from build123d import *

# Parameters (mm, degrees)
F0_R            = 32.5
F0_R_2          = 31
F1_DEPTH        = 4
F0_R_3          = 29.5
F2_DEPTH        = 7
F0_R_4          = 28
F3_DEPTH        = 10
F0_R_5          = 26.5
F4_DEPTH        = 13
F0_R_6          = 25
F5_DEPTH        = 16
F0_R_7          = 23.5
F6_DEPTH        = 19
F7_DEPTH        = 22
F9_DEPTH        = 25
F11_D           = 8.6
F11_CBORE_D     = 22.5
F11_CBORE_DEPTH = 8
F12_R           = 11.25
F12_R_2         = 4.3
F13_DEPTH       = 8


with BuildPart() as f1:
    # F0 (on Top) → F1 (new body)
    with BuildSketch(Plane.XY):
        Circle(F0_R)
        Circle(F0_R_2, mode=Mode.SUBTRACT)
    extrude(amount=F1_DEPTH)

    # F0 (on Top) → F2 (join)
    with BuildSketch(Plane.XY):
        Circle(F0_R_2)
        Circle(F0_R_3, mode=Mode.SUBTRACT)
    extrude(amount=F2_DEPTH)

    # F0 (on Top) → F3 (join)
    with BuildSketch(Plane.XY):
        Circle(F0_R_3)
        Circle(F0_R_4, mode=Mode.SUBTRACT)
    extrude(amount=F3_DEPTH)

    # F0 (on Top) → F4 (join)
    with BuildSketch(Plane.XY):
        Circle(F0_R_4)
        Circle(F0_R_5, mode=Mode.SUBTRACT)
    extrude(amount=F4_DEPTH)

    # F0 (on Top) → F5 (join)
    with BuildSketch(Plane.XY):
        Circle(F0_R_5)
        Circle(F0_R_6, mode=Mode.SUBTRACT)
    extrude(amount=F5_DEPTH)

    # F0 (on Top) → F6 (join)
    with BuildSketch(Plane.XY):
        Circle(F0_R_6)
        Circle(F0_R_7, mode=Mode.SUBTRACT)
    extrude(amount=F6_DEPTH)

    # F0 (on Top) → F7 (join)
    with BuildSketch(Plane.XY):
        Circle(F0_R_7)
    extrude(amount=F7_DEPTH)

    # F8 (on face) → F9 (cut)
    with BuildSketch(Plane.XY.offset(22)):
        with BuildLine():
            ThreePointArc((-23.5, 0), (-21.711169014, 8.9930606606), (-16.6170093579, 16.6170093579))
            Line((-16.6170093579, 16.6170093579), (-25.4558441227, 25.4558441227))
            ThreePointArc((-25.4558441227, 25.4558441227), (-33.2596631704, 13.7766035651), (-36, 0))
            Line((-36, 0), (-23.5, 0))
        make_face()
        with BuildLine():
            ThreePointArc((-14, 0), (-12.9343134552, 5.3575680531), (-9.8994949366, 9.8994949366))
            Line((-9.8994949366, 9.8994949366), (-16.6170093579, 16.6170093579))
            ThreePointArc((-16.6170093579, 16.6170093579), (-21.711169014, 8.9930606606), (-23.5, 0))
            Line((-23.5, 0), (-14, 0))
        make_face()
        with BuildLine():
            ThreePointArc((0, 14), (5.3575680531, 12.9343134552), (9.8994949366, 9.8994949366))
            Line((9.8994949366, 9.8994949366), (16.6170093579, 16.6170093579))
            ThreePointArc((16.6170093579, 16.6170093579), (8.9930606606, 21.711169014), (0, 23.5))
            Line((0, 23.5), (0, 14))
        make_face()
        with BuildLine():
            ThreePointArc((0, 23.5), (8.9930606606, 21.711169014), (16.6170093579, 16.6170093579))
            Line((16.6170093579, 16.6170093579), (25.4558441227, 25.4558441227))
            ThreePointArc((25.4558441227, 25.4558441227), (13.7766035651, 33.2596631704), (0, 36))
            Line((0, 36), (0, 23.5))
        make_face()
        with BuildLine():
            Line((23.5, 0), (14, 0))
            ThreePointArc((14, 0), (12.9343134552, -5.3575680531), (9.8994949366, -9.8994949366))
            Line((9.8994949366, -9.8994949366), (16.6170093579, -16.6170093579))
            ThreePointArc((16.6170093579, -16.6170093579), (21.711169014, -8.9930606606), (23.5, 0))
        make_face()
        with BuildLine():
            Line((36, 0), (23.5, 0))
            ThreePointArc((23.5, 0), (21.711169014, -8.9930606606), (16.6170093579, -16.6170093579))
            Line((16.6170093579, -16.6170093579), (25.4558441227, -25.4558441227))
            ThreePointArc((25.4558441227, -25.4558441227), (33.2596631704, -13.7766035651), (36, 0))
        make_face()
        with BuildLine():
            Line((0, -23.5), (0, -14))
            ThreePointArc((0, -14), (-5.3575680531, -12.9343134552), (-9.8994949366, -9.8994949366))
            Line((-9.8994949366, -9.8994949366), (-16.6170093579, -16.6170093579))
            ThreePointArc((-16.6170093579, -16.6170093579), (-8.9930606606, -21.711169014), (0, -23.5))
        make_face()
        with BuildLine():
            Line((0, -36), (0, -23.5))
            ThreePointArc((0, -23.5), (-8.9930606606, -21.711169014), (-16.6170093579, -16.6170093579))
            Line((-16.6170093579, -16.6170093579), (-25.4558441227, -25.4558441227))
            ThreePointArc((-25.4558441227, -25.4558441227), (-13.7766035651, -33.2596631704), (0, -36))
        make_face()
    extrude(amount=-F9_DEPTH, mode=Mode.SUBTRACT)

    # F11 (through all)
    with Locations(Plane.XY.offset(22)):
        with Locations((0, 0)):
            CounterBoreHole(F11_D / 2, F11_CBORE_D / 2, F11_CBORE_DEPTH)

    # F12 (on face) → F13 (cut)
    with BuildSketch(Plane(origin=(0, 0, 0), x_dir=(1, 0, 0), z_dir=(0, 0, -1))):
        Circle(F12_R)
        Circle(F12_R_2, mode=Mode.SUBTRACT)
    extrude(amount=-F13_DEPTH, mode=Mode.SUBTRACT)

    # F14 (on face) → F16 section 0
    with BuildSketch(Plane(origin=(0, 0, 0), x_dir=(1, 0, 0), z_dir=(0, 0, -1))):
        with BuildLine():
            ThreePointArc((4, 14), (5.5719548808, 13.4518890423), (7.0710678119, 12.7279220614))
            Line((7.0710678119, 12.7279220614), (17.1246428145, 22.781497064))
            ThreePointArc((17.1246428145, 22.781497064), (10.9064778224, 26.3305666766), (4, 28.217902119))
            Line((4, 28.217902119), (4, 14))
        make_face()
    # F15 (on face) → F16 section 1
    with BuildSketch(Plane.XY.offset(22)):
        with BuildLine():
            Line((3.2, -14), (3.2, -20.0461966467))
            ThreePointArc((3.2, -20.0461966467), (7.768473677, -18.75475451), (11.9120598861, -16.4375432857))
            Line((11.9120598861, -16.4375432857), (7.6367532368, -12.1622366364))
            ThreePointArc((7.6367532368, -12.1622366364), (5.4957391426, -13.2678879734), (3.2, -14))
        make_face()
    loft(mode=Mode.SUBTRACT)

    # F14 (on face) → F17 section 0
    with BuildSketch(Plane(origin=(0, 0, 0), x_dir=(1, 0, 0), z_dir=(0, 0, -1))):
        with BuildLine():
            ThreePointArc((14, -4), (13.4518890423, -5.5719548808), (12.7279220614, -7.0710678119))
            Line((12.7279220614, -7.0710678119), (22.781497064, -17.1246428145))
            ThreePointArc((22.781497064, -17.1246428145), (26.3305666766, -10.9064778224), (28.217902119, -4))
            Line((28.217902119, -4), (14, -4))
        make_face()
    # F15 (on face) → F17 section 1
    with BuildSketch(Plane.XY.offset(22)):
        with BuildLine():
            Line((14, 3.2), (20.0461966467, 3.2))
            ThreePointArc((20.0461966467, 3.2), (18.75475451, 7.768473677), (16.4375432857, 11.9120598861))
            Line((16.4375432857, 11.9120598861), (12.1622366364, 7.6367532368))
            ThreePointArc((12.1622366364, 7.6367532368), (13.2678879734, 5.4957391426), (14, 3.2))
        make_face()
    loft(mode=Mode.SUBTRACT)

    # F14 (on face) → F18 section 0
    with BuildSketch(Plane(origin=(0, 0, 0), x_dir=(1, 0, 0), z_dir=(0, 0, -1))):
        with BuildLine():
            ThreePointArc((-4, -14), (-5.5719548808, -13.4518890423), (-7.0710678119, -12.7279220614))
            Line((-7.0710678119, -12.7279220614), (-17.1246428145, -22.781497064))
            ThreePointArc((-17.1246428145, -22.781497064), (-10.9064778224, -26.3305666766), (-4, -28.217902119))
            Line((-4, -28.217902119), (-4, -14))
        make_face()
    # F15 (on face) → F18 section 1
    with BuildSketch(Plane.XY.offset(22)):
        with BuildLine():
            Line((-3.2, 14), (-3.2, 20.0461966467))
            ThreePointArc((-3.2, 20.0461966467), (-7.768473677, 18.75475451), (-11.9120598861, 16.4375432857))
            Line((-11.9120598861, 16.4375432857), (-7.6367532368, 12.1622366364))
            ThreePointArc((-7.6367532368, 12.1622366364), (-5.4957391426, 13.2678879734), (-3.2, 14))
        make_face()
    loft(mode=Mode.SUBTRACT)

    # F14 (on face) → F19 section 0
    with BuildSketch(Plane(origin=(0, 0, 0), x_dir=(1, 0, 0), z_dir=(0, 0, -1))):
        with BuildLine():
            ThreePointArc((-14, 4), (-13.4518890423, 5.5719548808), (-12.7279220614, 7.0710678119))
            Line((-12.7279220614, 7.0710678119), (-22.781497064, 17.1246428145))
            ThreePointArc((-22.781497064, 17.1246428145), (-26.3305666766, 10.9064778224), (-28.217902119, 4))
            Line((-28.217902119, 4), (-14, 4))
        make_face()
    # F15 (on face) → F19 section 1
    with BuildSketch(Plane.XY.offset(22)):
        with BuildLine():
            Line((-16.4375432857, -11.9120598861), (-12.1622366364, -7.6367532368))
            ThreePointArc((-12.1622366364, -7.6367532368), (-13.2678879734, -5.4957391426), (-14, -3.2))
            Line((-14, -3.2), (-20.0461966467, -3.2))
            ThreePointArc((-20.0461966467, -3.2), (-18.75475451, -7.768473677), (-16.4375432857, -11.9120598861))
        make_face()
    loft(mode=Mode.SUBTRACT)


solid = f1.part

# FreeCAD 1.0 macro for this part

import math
import FreeCAD as App
import Part
import Sketcher
from FreeCAD import Vector
Q = App.Units.Quantity

doc = App.newDocument("Part")
params = doc.addObject("Spreadsheet::Sheet", "Params")
for row, (alias, value) in enumerate([
    ("sketch1_diameter", "65 mm"),
    ("sketch1_diameter2", "62 mm"),
    ("pad1_length", "4 mm"),
    ("sketch2_diameter", "62 mm"),
    ("sketch2_diameter2", "59 mm"),
    ("pad2_length", "7 mm"),
    ("sketch3_diameter", "59 mm"),
    ("sketch3_diameter2", "56 mm"),
    ("pad3_length", "10 mm"),
    ("sketch4_diameter", "56 mm"),
    ("sketch4_diameter2", "53 mm"),
    ("pad4_length", "13 mm"),
    ("sketch5_diameter", "53 mm"),
    ("sketch5_diameter2", "50 mm"),
    ("pad5_length", "16 mm"),
    ("sketch6_diameter", "50 mm"),
    ("sketch6_diameter2", "47 mm"),
    ("pad6_length", "19 mm"),
    ("sketch7_diameter", "47 mm"),
    ("pad7_length", "22 mm"),
    ("sketch8_radius", "36 mm"),
    ("sketch8_radius2", "14 mm"),
    ("pocket1_length", "25 mm"),
    ("sketch9_diameter", "8.6 mm"),
    ("hole_diameter", "8.6 mm"),
    ("hole_cbore_diameter", "22.5 mm"),
    ("hole_cbore_depth", "8 mm"),
    ("sketch10_diameter", "22.5 mm"),
    ("sketch10_diameter2", "8.6 mm"),
    ("pocket2_length", "8 mm"),
    ("sketch11_radius", "28.5 mm"),
    ("sketch12_radius", "20.3 mm"),
    ("sketch13_radius", "28.5 mm"),
    ("sketch14_radius", "20.3 mm"),
    ("sketch15_radius", "28.5 mm"),
    ("sketch16_radius", "20.3 mm"),
    ("sketch17_radius", "28.5 mm"),
    ("sketch18_radius", "20.3 mm"),
], start=1):
    params.set(f"A{row}", alias)
    params.set(f"B{row}", "=" + value)
    params.setAlias(f"B{row}", alias)

body = doc.addObject("PartDesign::Body", "Body")

# Sketch on XY plane
sketch1 = body.newObject("Sketcher::SketchObject", "Sketch")
sketch1.AttachmentSupport = (doc.getObject("XY_Plane"), [""])
sketch1.MapMode = "FlatFace"
sketch1.addGeometry([
    Part.Circle(Vector(0, 0, 0), Vector(0, 0, 1), 32.5),
    Part.Circle(Vector(0, 0, 0), Vector(0, 0, 1), 31),
], False)
sketch1.addConstraint([
    Sketcher.Constraint("Coincident", 0, 3, -1, 1),
    Sketcher.Constraint("Coincident", 1, 3, -1, 1),
    Sketcher.Constraint("Diameter", 0, 65.0),
    Sketcher.Constraint("Diameter", 1, 62.0),
])
sketch1.setExpression("Constraints[2]", "Params.sketch1_diameter")
sketch1.setExpression("Constraints[3]", "Params.sketch1_diameter2")
pad1 = body.newObject("PartDesign::Pad", "Pad")
pad1.Profile = sketch1
pad1.setExpression("Length", "Params.pad1_length")

# Sketch on XY plane
sketch2 = body.newObject("Sketcher::SketchObject", "Sketch001")
sketch2.AttachmentSupport = (doc.getObject("XY_Plane"), [""])
sketch2.MapMode = "FlatFace"
sketch2.addGeometry([
    Part.Circle(Vector(0, 0, 0), Vector(0, 0, 1), 31),
    Part.Circle(Vector(0, 0, 0), Vector(0, 0, 1), 29.5),
], False)
sketch2.addConstraint([
    Sketcher.Constraint("Coincident", 0, 3, -1, 1),
    Sketcher.Constraint("Coincident", 1, 3, -1, 1),
    Sketcher.Constraint("Diameter", 0, 62.0),
    Sketcher.Constraint("Diameter", 1, 59.0),
])
sketch2.setExpression("Constraints[2]", "Params.sketch2_diameter")
sketch2.setExpression("Constraints[3]", "Params.sketch2_diameter2")
pad2 = body.newObject("PartDesign::Pad", "Pad001")
pad2.Profile = sketch2
pad2.setExpression("Length", "Params.pad2_length")

# Sketch on XY plane
sketch3 = body.newObject("Sketcher::SketchObject", "Sketch002")
sketch3.AttachmentSupport = (doc.getObject("XY_Plane"), [""])
sketch3.MapMode = "FlatFace"
sketch3.addGeometry([
    Part.Circle(Vector(0, 0, 0), Vector(0, 0, 1), 29.5),
    Part.Circle(Vector(0, 0, 0), Vector(0, 0, 1), 28),
], False)
sketch3.addConstraint([
    Sketcher.Constraint("Coincident", 0, 3, -1, 1),
    Sketcher.Constraint("Coincident", 1, 3, -1, 1),
    Sketcher.Constraint("Diameter", 0, 59.0),
    Sketcher.Constraint("Diameter", 1, 56.0),
])
sketch3.setExpression("Constraints[2]", "Params.sketch3_diameter")
sketch3.setExpression("Constraints[3]", "Params.sketch3_diameter2")
pad3 = body.newObject("PartDesign::Pad", "Pad002")
pad3.Profile = sketch3
pad3.setExpression("Length", "Params.pad3_length")

# Sketch on XY plane
sketch4 = body.newObject("Sketcher::SketchObject", "Sketch003")
sketch4.AttachmentSupport = (doc.getObject("XY_Plane"), [""])
sketch4.MapMode = "FlatFace"
sketch4.addGeometry([
    Part.Circle(Vector(0, 0, 0), Vector(0, 0, 1), 28),
    Part.Circle(Vector(0, 0, 0), Vector(0, 0, 1), 26.5),
], False)
sketch4.addConstraint([
    Sketcher.Constraint("Coincident", 0, 3, -1, 1),
    Sketcher.Constraint("Coincident", 1, 3, -1, 1),
    Sketcher.Constraint("Diameter", 0, 56.0),
    Sketcher.Constraint("Diameter", 1, 53.0),
])
sketch4.setExpression("Constraints[2]", "Params.sketch4_diameter")
sketch4.setExpression("Constraints[3]", "Params.sketch4_diameter2")
pad4 = body.newObject("PartDesign::Pad", "Pad003")
pad4.Profile = sketch4
pad4.setExpression("Length", "Params.pad4_length")

# Sketch on XY plane
sketch5 = body.newObject("Sketcher::SketchObject", "Sketch004")
sketch5.AttachmentSupport = (doc.getObject("XY_Plane"), [""])
sketch5.MapMode = "FlatFace"
sketch5.addGeometry([
    Part.Circle(Vector(0, 0, 0), Vector(0, 0, 1), 26.5),
    Part.Circle(Vector(0, 0, 0), Vector(0, 0, 1), 25),
], False)
sketch5.addConstraint([
    Sketcher.Constraint("Coincident", 0, 3, -1, 1),
    Sketcher.Constraint("Coincident", 1, 3, -1, 1),
    Sketcher.Constraint("Diameter", 0, 53.0),
    Sketcher.Constraint("Diameter", 1, 50.0),
])
sketch5.setExpression("Constraints[2]", "Params.sketch5_diameter")
sketch5.setExpression("Constraints[3]", "Params.sketch5_diameter2")
pad5 = body.newObject("PartDesign::Pad", "Pad004")
pad5.Profile = sketch5
pad5.setExpression("Length", "Params.pad5_length")

# Sketch on XY plane
sketch6 = body.newObject("Sketcher::SketchObject", "Sketch005")
sketch6.AttachmentSupport = (doc.getObject("XY_Plane"), [""])
sketch6.MapMode = "FlatFace"
sketch6.addGeometry([
    Part.Circle(Vector(0, 0, 0), Vector(0, 0, 1), 25),
    Part.Circle(Vector(0, 0, 0), Vector(0, 0, 1), 23.5),
], False)
sketch6.addConstraint([
    Sketcher.Constraint("Coincident", 0, 3, -1, 1),
    Sketcher.Constraint("Coincident", 1, 3, -1, 1),
    Sketcher.Constraint("Diameter", 0, 50.0),
    Sketcher.Constraint("Diameter", 1, 47.0),
])
sketch6.setExpression("Constraints[2]", "Params.sketch6_diameter")
sketch6.setExpression("Constraints[3]", "Params.sketch6_diameter2")
pad6 = body.newObject("PartDesign::Pad", "Pad005")
pad6.Profile = sketch6
pad6.setExpression("Length", "Params.pad6_length")

# Sketch on XY plane
sketch7 = body.newObject("Sketcher::SketchObject", "Sketch006")
sketch7.AttachmentSupport = (doc.getObject("XY_Plane"), [""])
sketch7.MapMode = "FlatFace"
sketch7.addGeometry(Part.Circle(Vector(0, 0, 0), Vector(0, 0, 1), 23.5), False)
sketch7.addConstraint([
    Sketcher.Constraint("Coincident", 0, 3, -1, 1),
    Sketcher.Constraint("Diameter", 0, 47.0),
])
sketch7.setExpression("Constraints[1]", "Params.sketch7_diameter")
pad7 = body.newObject("PartDesign::Pad", "Pad006")
pad7.Profile = sketch7
pad7.setExpression("Length", "Params.pad7_length")

# Sketch on XY plane
sketch8 = body.newObject("Sketcher::SketchObject", "Sketch007")
sketch8.AttachmentSupport = (doc.getObject("XY_Plane"), [""])
sketch8.MapMode = "FlatFace"
sketch8.AttachmentOffset = App.Placement(Vector(0, 0, 22), App.Rotation())
sketch8.addGeometry([
    Part.ArcOfCircle(Part.Circle(Vector(0, 0, 0), Vector(0, 0, 1), 36), math.radians(135), math.radians(180)),  # 0
    Part.LineSegment(Vector(-36, 0, 0), Vector(-14, 0, 0)),  # 1
    Part.ArcOfCircle(Part.Circle(Vector(0, 0, 0), Vector(0, 0, 1), 14), math.radians(135), math.radians(180)),  # 2
    Part.LineSegment(Vector(-9.899495, 9.899495, 0), Vector(-25.455844, 25.455844, 0)),  # 3
    Part.ArcOfCircle(Part.Circle(Vector(0, 0, 0), Vector(0, 0, 1), 14), math.radians(45), math.radians(90)),  # 4
    Part.LineSegment(Vector(9.899495, 9.899495, 0), Vector(25.455844, 25.455844, 0)),  # 5
    Part.ArcOfCircle(Part.Circle(Vector(0, 0, 0), Vector(0, 0, 1), 36), math.radians(45), math.radians(90)),  # 6
    Part.LineSegment(Vector(0, 36, 0), Vector(0, 14, 0)),  # 7
    Part.ArcOfCircle(Part.Circle(Vector(0, 0, 0), Vector(0, 0, 1), 14), math.radians(-45), math.radians(0)),  # 8
    Part.LineSegment(Vector(9.899495, -9.899495, 0), Vector(25.455844, -25.455844, 0)),  # 9
    Part.ArcOfCircle(Part.Circle(Vector(0, 0, 0), Vector(0, 0, 1), 36), math.radians(-45), math.radians(0)),  # 10
    Part.LineSegment(Vector(36, 0, 0), Vector(14, 0, 0)),  # 11
    Part.ArcOfCircle(Part.Circle(Vector(0, 0, 0), Vector(0, 0, 1), 14), math.radians(-135), math.radians(-90)),  # 12
    Part.LineSegment(Vector(-9.899495, -9.899495, 0), Vector(-25.455844, -25.455844, 0)),  # 13
    Part.ArcOfCircle(Part.Circle(Vector(0, 0, 0), Vector(0, 0, 1), 36), math.radians(-135), math.radians(-90)),  # 14
    Part.LineSegment(Vector(0, -36, 0), Vector(0, -14, 0)),  # 15
], False)
sketch8.addConstraint([
    Sketcher.Constraint("Coincident", 0, 2, 1, 1),
    Sketcher.Constraint("Coincident", 1, 2, 2, 2),
    Sketcher.Constraint("Coincident", 2, 1, 3, 1),
    Sketcher.Constraint("Coincident", 3, 2, 0, 1),
    Sketcher.Constraint("Coincident", 4, 1, 5, 1),
    Sketcher.Constraint("Coincident", 5, 2, 6, 1),
    Sketcher.Constraint("Coincident", 6, 2, 7, 1),
    Sketcher.Constraint("Coincident", 7, 2, 4, 2),
    Sketcher.Constraint("Coincident", 8, 1, 9, 1),
    Sketcher.Constraint("Coincident", 9, 2, 10, 1),
    Sketcher.Constraint("Coincident", 10, 2, 11, 1),
    Sketcher.Constraint("Coincident", 11, 2, 8, 2),
    Sketcher.Constraint("Coincident", 12, 1, 13, 1),
    Sketcher.Constraint("Coincident", 13, 2, 14, 1),
    Sketcher.Constraint("Coincident", 14, 2, 15, 1),
    Sketcher.Constraint("Coincident", 15, 2, 12, 2),
    Sketcher.Constraint("Horizontal", 1),
    Sketcher.Constraint("Vertical", 7),
    Sketcher.Constraint("Horizontal", 11),
    Sketcher.Constraint("Vertical", 15),
    Sketcher.Constraint("Coincident", 0, 3, -1, 1),
    Sketcher.Constraint("Coincident", 2, 3, -1, 1),
    Sketcher.Constraint("Coincident", 4, 3, -1, 1),
    Sketcher.Constraint("Coincident", 6, 3, -1, 1),
    Sketcher.Constraint("Coincident", 8, 3, -1, 1),
    Sketcher.Constraint("Coincident", 10, 3, -1, 1),
    Sketcher.Constraint("Coincident", 12, 3, -1, 1),
    Sketcher.Constraint("Coincident", 14, 3, -1, 1),
    Sketcher.Constraint("Equal", 2, 4),
    Sketcher.Constraint("Equal", 0, 6),
    Sketcher.Constraint("Equal", 4, 8),
    Sketcher.Constraint("Equal", 6, 10),
    Sketcher.Constraint("Equal", 8, 12),
    Sketcher.Constraint("Equal", 10, 14),
    Sketcher.Constraint("PointOnObject", 0, 2, -1),
    Sketcher.Constraint("PointOnObject", 6, 2, -2),
    Sketcher.Constraint("PointOnObject", 10, 2, -1),
    Sketcher.Constraint("PointOnObject", 14, 2, -2),
    Sketcher.Constraint("Perpendicular", 3, 5),
    Sketcher.Constraint("Perpendicular", 5, 9),
    Sketcher.Constraint("Perpendicular", 9, 13),
    Sketcher.Constraint("Horizontal", 2, 1, 4, 1),
    Sketcher.Constraint("Horizontal", 3, 2, 5, 2),
    Sketcher.Constraint("Horizontal", 8, 1, 12, 1),
    Sketcher.Constraint("Vertical", 4, 1, 8, 1),
    Sketcher.Constraint("Radius", 0, 36.0),
    Sketcher.Constraint("Radius", 2, 14.0),
    Sketcher.Constraint("DistanceX", 2, 1, -1, 1, 9.899495),
])
sketch8.setExpression("Constraints[45]", "Params.sketch8_radius")
sketch8.setExpression("Constraints[46]", "Params.sketch8_radius2")
pocket1 = body.newObject("PartDesign::Pocket", "Pocket")
pocket1.Profile = sketch8
pocket1.setExpression("Length", "Params.pocket1_length")

# Sketch on XY plane
sketch9 = body.newObject("Sketcher::SketchObject", "Sketch008")
sketch9.AttachmentSupport = (doc.getObject("XY_Plane"), [""])
sketch9.MapMode = "FlatFace"
sketch9.AttachmentOffset = App.Placement(Vector(0, 0, 22), App.Rotation())
sketch9.addGeometry(Part.Circle(Vector(0, 0, 0), Vector(0, 0, 1), 4.3), False)
sketch9.addConstraint([
    Sketcher.Constraint("Coincident", 0, 3, -1, 1),
    Sketcher.Constraint("Diameter", 0, 8.6),
])
sketch9.setExpression("Constraints[1]", "Params.sketch9_diameter")
doc.recompute()
hole = body.newObject("PartDesign::Hole", "Hole")
hole.Profile = sketch9
hole.ThreadType = "None"
hole.setExpression("Diameter", "Params.hole_diameter")
hole.DepthType = "ThroughAll"
hole.HoleCutType = "Counterbore"
hole.setExpression("HoleCutDiameter", "Params.hole_cbore_diameter")
hole.setExpression("HoleCutDepth", "Params.hole_cbore_depth")

# Sketch on XY plane
sketch10 = body.newObject("Sketcher::SketchObject", "Sketch009")
sketch10.AttachmentSupport = (doc.getObject("XY_Plane"), [""])
sketch10.MapMode = "FlatFace"
sketch10.addGeometry([
    Part.Circle(Vector(0, 0, 0), Vector(0, 0, 1), 11.25),
    Part.Circle(Vector(0, 0, 0), Vector(0, 0, 1), 4.3),
], False)
sketch10.addConstraint([
    Sketcher.Constraint("Coincident", 0, 3, -1, 1),
    Sketcher.Constraint("Coincident", 1, 3, -1, 1),
    Sketcher.Constraint("Diameter", 0, 22.5),
    Sketcher.Constraint("Diameter", 1, 8.6),
])
sketch10.setExpression("Constraints[2]", "Params.sketch10_diameter")
sketch10.setExpression("Constraints[3]", "Params.sketch10_diameter2")
pocket2 = body.newObject("PartDesign::Pocket", "Pocket001")
pocket2.Profile = sketch10
pocket2.setExpression("Length", "Params.pocket2_length")
pocket2.Reversed = True

# Sketch on XY plane
sketch11 = body.newObject("Sketcher::SketchObject", "Sketch010")
sketch11.AttachmentSupport = (doc.getObject("XY_Plane"), [""])
sketch11.MapMode = "FlatFace"
sketch11.addGeometry([
    Part.ArcOfCircle(Part.Circle(Vector(0, 0, 0), Vector(0, 0, 1), 14.56022), math.radians(-74.054604), math.radians(-60.945396)),
    Part.LineSegment(Vector(7.071068, -12.727922, 0), Vector(17.124643, -22.781497, 0)),
    Part.ArcOfCircle(Part.Circle(Vector(0, 0, 0), Vector(0, 0, 1), 28.5), math.radians(-81.93185), math.radians(-53.068151)),
    Part.LineSegment(Vector(4, -28.217902, 0), Vector(4, -14, 0)),
], False)
sketch11.addConstraint([
    Sketcher.Constraint("Coincident", 0, 2, 1, 1),
    Sketcher.Constraint("Coincident", 1, 2, 2, 2),
    Sketcher.Constraint("Coincident", 2, 1, 3, 1),
    Sketcher.Constraint("Coincident", 3, 2, 0, 1),
    Sketcher.Constraint("Vertical", 3),
    Sketcher.Constraint("Coincident", 0, 3, -1, 1),
    Sketcher.Constraint("Coincident", 2, 3, -1, 1),
    Sketcher.Constraint("Radius", 2, 28.5),
    Sketcher.Constraint("Angle", 1, Q("-45 deg")),
    Sketcher.Constraint("DistanceX", -1, 1, 2, 1, 4.0),
    Sketcher.Constraint("DistanceY", 3, 2, -1, 1, 14.0),
    Sketcher.Constraint("DistanceY", 2, 1, 0, 2, 15.48998),
])
sketch11.setExpression("Constraints[7]", "Params.sketch11_radius")

# Sketch on XY plane
sketch12 = body.newObject("Sketcher::SketchObject", "Sketch011")
sketch12.AttachmentSupport = (doc.getObject("XY_Plane"), [""])
sketch12.MapMode = "FlatFace"
sketch12.AttachmentOffset = App.Placement(Vector(0, 0, 22), App.Rotation())
sketch12.addGeometry([
    Part.LineSegment(Vector(3.2, -14, 0), Vector(3.2, -20.046197, 0)),
    Part.ArcOfCircle(Part.Circle(Vector(0, 0, 0), Vector(0, 0, 1), 20.3), math.radians(-80.930323), math.radians(-54.069677)),
    Part.LineSegment(Vector(11.91206, -16.437543, 0), Vector(7.636753, -12.162237, 0)),
    Part.ArcOfCircle(Part.Circle(Vector(0, 0, 0), Vector(0, 0, 1), 14.361058), math.radians(-77.124998), math.radians(-57.875002)),
], False)
sketch12.addConstraint([
    Sketcher.Constraint("Coincident", 0, 2, 1, 1),
    Sketcher.Constraint("Coincident", 1, 2, 2, 1),
    Sketcher.Constraint("Coincident", 2, 2, 3, 2),
    Sketcher.Constraint("Coincident", 3, 1, 0, 1),
    Sketcher.Constraint("Vertical", 0),
    Sketcher.Constraint("Coincident", 1, 3, -1, 1),
    Sketcher.Constraint("Coincident", 3, 3, -1, 1),
    Sketcher.Constraint("Radius", 1, 20.3),
    Sketcher.Constraint("Angle", 2, Q("135 deg")),
    Sketcher.Constraint("DistanceY", 3, 1, -1, 1, 14.0),
    Sketcher.Constraint("DistanceX", -1, 1, 0, 2, 3.2),
    Sketcher.Constraint("DistanceX", -1, 1, 1, 2, 11.91206),
])
sketch12.setExpression("Constraints[7]", "Params.sketch12_radius")

subtractiveloft = body.newObject("PartDesign::SubtractiveLoft", "SubtractiveLoft")
subtractiveloft.Profile = sketch11
subtractiveloft.Sections = [sketch12]

# Sketch on XY plane
sketch13 = body.newObject("Sketcher::SketchObject", "Sketch012")
sketch13.AttachmentSupport = (doc.getObject("XY_Plane"), [""])
sketch13.MapMode = "FlatFace"
sketch13.addGeometry([
    Part.ArcOfCircle(Part.Circle(Vector(0, 0, 0), Vector(0, 0, 1), 14.56022), math.radians(15.945396), math.radians(29.054604)),
    Part.LineSegment(Vector(12.727922, 7.071068, 0), Vector(22.781497, 17.124643, 0)),
    Part.ArcOfCircle(Part.Circle(Vector(0, 0, 0), Vector(0, 0, 1), 28.5), math.radians(8.06815), math.radians(36.931849)),
    Part.LineSegment(Vector(28.217902, 4, 0), Vector(14, 4, 0)),
], False)
sketch13.addConstraint([
    Sketcher.Constraint("Coincident", 0, 2, 1, 1),
    Sketcher.Constraint("Coincident", 1, 2, 2, 2),
    Sketcher.Constraint("Coincident", 2, 1, 3, 1),
    Sketcher.Constraint("Coincident", 3, 2, 0, 1),
    Sketcher.Constraint("Horizontal", 3),
    Sketcher.Constraint("Coincident", 0, 3, -1, 1),
    Sketcher.Constraint("Coincident", 2, 3, -1, 1),
    Sketcher.Constraint("Radius", 2, 28.5),
    Sketcher.Constraint("Angle", 1, Q("45 deg")),
    Sketcher.Constraint("DistanceY", -1, 1, 2, 1, 4.0),
    Sketcher.Constraint("DistanceX", -1, 1, 3, 2, 14.0),
    Sketcher.Constraint("DistanceX", 0, 2, 2, 1, 15.48998),
])
sketch13.setExpression("Constraints[7]", "Params.sketch13_radius")

# Sketch on XY plane
sketch14 = body.newObject("Sketcher::SketchObject", "Sketch013")
sketch14.AttachmentSupport = (doc.getObject("XY_Plane"), [""])
sketch14.MapMode = "FlatFace"
sketch14.AttachmentOffset = App.Placement(Vector(0, 0, 22), App.Rotation())
sketch14.addGeometry([
    Part.LineSegment(Vector(14, 3.2, 0), Vector(20.046197, 3.2, 0)),
    Part.ArcOfCircle(Part.Circle(Vector(0, 0, 0), Vector(0, 0, 1), 20.3), math.radians(9.069677), math.radians(35.930323)),
    Part.LineSegment(Vector(16.437543, 11.91206, 0), Vector(12.162237, 7.636753, 0)),
    Part.ArcOfCircle(Part.Circle(Vector(0, 0, 0), Vector(0, 0, 1), 14.361058), math.radians(12.875002), math.radians(32.124998)),
], False)
sketch14.addConstraint([
    Sketcher.Constraint("Coincident", 0, 2, 1, 1),
    Sketcher.Constraint("Coincident", 1, 2, 2, 1),
    Sketcher.Constraint("Coincident", 2, 2, 3, 2),
    Sketcher.Constraint("Coincident", 3, 1, 0, 1),
    Sketcher.Constraint("Horizontal", 0),
    Sketcher.Constraint("Coincident", 1, 3, -1, 1),
    Sketcher.Constraint("Coincident", 3, 3, -1, 1),
    Sketcher.Constraint("Radius", 1, 20.3),
    Sketcher.Constraint("Angle", 2, Q("-135 deg")),
    Sketcher.Constraint("DistanceX", -1, 1, 3, 1, 14.0),
    Sketcher.Constraint("DistanceY", -1, 1, 0, 2, 3.2),
    Sketcher.Constraint("DistanceY", -1, 1, 1, 2, 11.91206),
])
sketch14.setExpression("Constraints[7]", "Params.sketch14_radius")

subtractiveloft2 = body.newObject("PartDesign::SubtractiveLoft", "SubtractiveLoft001")
subtractiveloft2.Profile = sketch13
subtractiveloft2.Sections = [sketch14]

# Sketch on XY plane
sketch15 = body.newObject("Sketcher::SketchObject", "Sketch014")
sketch15.AttachmentSupport = (doc.getObject("XY_Plane"), [""])
sketch15.MapMode = "FlatFace"
sketch15.addGeometry([
    Part.ArcOfCircle(Part.Circle(Vector(0, 0, 0), Vector(0, 0, 1), 14.56022), math.radians(105.945396), math.radians(119.054604)),
    Part.LineSegment(Vector(-7.071068, 12.727922, 0), Vector(-17.124643, 22.781497, 0)),
    Part.ArcOfCircle(Part.Circle(Vector(0, 0, 0), Vector(0, 0, 1), 28.5), math.radians(98.06815), math.radians(126.931849)),
    Part.LineSegment(Vector(-4, 28.217902, 0), Vector(-4, 14, 0)),
], False)
sketch15.addConstraint([
    Sketcher.Constraint("Coincident", 0, 2, 1, 1),
    Sketcher.Constraint("Coincident", 1, 2, 2, 2),
    Sketcher.Constraint("Coincident", 2, 1, 3, 1),
    Sketcher.Constraint("Coincident", 3, 2, 0, 1),
    Sketcher.Constraint("Vertical", 3),
    Sketcher.Constraint("Coincident", 0, 3, -1, 1),
    Sketcher.Constraint("Coincident", 2, 3, -1, 1),
    Sketcher.Constraint("Radius", 2, 28.5),
    Sketcher.Constraint("Angle", 1, Q("135 deg")),
    Sketcher.Constraint("DistanceX", 2, 1, -1, 1, 4.0),
    Sketcher.Constraint("DistanceY", -1, 1, 3, 2, 14.0),
    Sketcher.Constraint("DistanceY", 0, 2, 2, 1, 15.48998),
])
sketch15.setExpression("Constraints[7]", "Params.sketch15_radius")

# Sketch on XY plane
sketch16 = body.newObject("Sketcher::SketchObject", "Sketch015")
sketch16.AttachmentSupport = (doc.getObject("XY_Plane"), [""])
sketch16.MapMode = "FlatFace"
sketch16.AttachmentOffset = App.Placement(Vector(0, 0, 22), App.Rotation())
sketch16.addGeometry([
    Part.LineSegment(Vector(-3.2, 14, 0), Vector(-3.2, 20.046197, 0)),
    Part.ArcOfCircle(Part.Circle(Vector(0, 0, 0), Vector(0, 0, 1), 20.3), math.radians(99.069677), math.radians(125.930323)),
    Part.LineSegment(Vector(-11.91206, 16.437543, 0), Vector(-7.636753, 12.162237, 0)),
    Part.ArcOfCircle(Part.Circle(Vector(0, 0, 0), Vector(0, 0, 1), 14.361058), math.radians(102.875002), math.radians(122.124998)),
], False)
sketch16.addConstraint([
    Sketcher.Constraint("Coincident", 0, 2, 1, 1),
    Sketcher.Constraint("Coincident", 1, 2, 2, 1),
    Sketcher.Constraint("Coincident", 2, 2, 3, 2),
    Sketcher.Constraint("Coincident", 3, 1, 0, 1),
    Sketcher.Constraint("Vertical", 0),
    Sketcher.Constraint("Coincident", 1, 3, -1, 1),
    Sketcher.Constraint("Coincident", 3, 3, -1, 1),
    Sketcher.Constraint("Radius", 1, 20.3),
    Sketcher.Constraint("Angle", 2, Q("-45 deg")),
    Sketcher.Constraint("DistanceY", -1, 1, 3, 1, 14.0),
    Sketcher.Constraint("DistanceX", 0, 2, -1, 1, 3.2),
    Sketcher.Constraint("DistanceX", 1, 2, -1, 1, 11.91206),
])
sketch16.setExpression("Constraints[7]", "Params.sketch16_radius")

subtractiveloft3 = body.newObject("PartDesign::SubtractiveLoft", "SubtractiveLoft002")
subtractiveloft3.Profile = sketch15
subtractiveloft3.Sections = [sketch16]

# Sketch on XY plane
sketch17 = body.newObject("Sketcher::SketchObject", "Sketch016")
sketch17.AttachmentSupport = (doc.getObject("XY_Plane"), [""])
sketch17.MapMode = "FlatFace"
sketch17.addGeometry([
    Part.ArcOfCircle(Part.Circle(Vector(0, 0, 0), Vector(0, 0, 1), 14.56022), math.radians(-164.054604), math.radians(-150.945396)),
    Part.LineSegment(Vector(-12.727922, -7.071068, 0), Vector(-22.781497, -17.124643, 0)),
    Part.ArcOfCircle(Part.Circle(Vector(0, 0, 0), Vector(0, 0, 1), 28.5), math.radians(-171.93185), math.radians(-143.068151)),
    Part.LineSegment(Vector(-28.217902, -4, 0), Vector(-14, -4, 0)),
], False)
sketch17.addConstraint([
    Sketcher.Constraint("Coincident", 0, 2, 1, 1),
    Sketcher.Constraint("Coincident", 1, 2, 2, 2),
    Sketcher.Constraint("Coincident", 2, 1, 3, 1),
    Sketcher.Constraint("Coincident", 3, 2, 0, 1),
    Sketcher.Constraint("Horizontal", 3),
    Sketcher.Constraint("Coincident", 0, 3, -1, 1),
    Sketcher.Constraint("Coincident", 2, 3, -1, 1),
    Sketcher.Constraint("Radius", 2, 28.5),
    Sketcher.Constraint("Angle", 1, Q("-135 deg")),
    Sketcher.Constraint("DistanceY", 2, 1, -1, 1, 4.0),
    Sketcher.Constraint("DistanceX", 3, 2, -1, 1, 14.0),
    Sketcher.Constraint("DistanceX", 2, 1, 0, 2, 15.48998),
])
sketch17.setExpression("Constraints[7]", "Params.sketch17_radius")

# Sketch on XY plane
sketch18 = body.newObject("Sketcher::SketchObject", "Sketch017")
sketch18.AttachmentSupport = (doc.getObject("XY_Plane"), [""])
sketch18.MapMode = "FlatFace"
sketch18.AttachmentOffset = App.Placement(Vector(0, 0, 22), App.Rotation())
sketch18.addGeometry([
    Part.LineSegment(Vector(-16.437543, -11.91206, 0), Vector(-12.162237, -7.636753, 0)),
    Part.ArcOfCircle(Part.Circle(Vector(0, 0, 0), Vector(0, 0, 1), 14.361058), math.radians(-167.124998), math.radians(-147.875002)),
    Part.LineSegment(Vector(-14, -3.2, 0), Vector(-20.046197, -3.2, 0)),
    Part.ArcOfCircle(Part.Circle(Vector(0, 0, 0), Vector(0, 0, 1), 20.3), math.radians(-170.930323), math.radians(-144.069677)),
], False)
sketch18.addConstraint([
    Sketcher.Constraint("Coincident", 0, 2, 1, 2),
    Sketcher.Constraint("Coincident", 1, 1, 2, 1),
    Sketcher.Constraint("Coincident", 2, 2, 3, 1),
    Sketcher.Constraint("Coincident", 3, 2, 0, 1),
    Sketcher.Constraint("Horizontal", 2),
    Sketcher.Constraint("Coincident", 1, 3, -1, 1),
    Sketcher.Constraint("Coincident", 3, 3, -1, 1),
    Sketcher.Constraint("Radius", 3, 20.3),
    Sketcher.Constraint("Angle", 0, Q("45 deg")),
    Sketcher.Constraint("DistanceX", 1, 1, -1, 1, 14.0),
    Sketcher.Constraint("DistanceY", 1, 1, -1, 1, 3.2),
    Sketcher.Constraint("DistanceY", 3, 2, -1, 1, 11.91206),
])
sketch18.setExpression("Constraints[7]", "Params.sketch18_radius")

subtractiveloft4 = body.newObject("PartDesign::SubtractiveLoft", "SubtractiveLoft003")
subtractiveloft4.Profile = sketch17
subtractiveloft4.Sections = [sketch18]

doc.recompute()
